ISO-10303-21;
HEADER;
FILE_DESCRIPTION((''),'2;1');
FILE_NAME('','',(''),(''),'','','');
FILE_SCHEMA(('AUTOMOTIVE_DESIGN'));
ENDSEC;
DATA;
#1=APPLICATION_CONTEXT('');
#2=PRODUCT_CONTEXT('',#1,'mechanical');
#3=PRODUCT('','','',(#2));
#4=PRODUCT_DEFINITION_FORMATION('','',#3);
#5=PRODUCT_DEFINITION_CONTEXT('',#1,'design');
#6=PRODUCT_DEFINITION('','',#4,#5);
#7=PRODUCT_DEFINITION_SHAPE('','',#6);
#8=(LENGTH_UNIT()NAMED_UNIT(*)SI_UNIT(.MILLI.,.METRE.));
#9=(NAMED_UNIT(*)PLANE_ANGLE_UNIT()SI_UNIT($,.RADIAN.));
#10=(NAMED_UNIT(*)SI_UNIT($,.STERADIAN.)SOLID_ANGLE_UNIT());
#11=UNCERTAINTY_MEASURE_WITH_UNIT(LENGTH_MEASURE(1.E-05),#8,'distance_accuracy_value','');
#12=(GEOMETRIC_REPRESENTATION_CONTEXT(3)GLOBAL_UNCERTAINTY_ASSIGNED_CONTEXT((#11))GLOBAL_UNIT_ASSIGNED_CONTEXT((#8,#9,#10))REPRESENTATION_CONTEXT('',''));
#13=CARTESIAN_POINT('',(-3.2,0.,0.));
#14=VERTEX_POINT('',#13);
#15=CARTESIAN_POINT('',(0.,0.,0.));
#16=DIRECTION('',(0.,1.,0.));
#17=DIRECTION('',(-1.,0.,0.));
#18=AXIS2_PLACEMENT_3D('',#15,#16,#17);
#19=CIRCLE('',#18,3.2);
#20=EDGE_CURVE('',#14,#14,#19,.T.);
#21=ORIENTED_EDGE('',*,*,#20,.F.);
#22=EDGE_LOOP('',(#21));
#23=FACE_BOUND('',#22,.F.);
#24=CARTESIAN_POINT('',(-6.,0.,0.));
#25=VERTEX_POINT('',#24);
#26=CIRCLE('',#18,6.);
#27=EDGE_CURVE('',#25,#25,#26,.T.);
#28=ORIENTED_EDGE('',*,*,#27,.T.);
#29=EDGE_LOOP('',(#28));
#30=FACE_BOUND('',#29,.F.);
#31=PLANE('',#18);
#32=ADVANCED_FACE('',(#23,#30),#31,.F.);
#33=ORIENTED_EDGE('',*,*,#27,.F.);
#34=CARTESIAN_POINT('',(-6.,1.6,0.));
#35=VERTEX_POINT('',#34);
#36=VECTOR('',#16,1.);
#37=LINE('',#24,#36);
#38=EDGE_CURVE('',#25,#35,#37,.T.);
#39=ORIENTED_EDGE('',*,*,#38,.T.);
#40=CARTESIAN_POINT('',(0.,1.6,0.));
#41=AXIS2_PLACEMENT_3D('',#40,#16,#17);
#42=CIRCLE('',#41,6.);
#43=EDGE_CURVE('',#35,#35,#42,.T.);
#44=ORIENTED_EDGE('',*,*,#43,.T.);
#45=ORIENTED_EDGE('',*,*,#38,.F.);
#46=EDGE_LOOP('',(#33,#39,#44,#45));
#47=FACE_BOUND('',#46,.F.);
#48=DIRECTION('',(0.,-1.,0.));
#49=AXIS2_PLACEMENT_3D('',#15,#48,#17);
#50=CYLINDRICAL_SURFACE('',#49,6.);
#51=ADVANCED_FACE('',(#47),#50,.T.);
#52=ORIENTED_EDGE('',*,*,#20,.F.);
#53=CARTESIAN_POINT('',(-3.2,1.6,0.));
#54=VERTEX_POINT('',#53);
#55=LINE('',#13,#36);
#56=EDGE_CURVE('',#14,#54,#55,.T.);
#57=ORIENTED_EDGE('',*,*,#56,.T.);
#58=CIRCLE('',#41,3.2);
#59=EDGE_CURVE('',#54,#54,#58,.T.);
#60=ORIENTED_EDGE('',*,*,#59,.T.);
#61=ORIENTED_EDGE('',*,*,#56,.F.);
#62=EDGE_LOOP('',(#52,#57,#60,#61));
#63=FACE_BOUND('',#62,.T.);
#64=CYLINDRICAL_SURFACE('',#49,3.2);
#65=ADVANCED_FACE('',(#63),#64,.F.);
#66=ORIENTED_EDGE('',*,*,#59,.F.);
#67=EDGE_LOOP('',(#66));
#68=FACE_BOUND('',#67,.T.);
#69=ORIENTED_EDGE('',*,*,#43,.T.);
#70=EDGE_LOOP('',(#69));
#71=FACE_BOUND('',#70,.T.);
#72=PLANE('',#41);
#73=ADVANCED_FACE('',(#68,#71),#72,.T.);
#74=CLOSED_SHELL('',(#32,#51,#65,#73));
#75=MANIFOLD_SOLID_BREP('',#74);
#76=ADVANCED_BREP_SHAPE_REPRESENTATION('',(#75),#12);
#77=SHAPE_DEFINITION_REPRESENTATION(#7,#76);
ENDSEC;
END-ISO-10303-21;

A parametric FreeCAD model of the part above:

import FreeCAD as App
import Part
import Sketcher
Q = App.Units.Quantity

doc = App.newDocument("Part")
body = doc.addObject("PartDesign::Body", "Body")

# Sketch on XZ plane
sketch1 = doc.addObject("Sketcher::SketchObject", "Sketch")
body.addObject(sketch1)
sketch1.AttachmentSupport = (doc.XZ_Plane, [""])
sketch1.MapMode = "FlatFace"
sketch1.addGeometry(Part.Circle(App.Vector(0, 0, 0), App.Vector(0, 0, 1), 6), False)
sketch1.addGeometry(Part.Circle(App.Vector(0, 0, 0), App.Vector(0, 0, 1), 3.2), False)
sketch1.addConstraint(Sketcher.Constraint("Coincident", 0, 3, -1, 1))
sketch1.addConstraint(Sketcher.Constraint("Coincident", 1, 3, -1, 1))
sketch1.addConstraint(Sketcher.Constraint("Diameter", 0, Q("12 mm")))
sketch1.addConstraint(Sketcher.Constraint("Diameter", 1, Q("6.4 mm")))
pad1 = doc.addObject("PartDesign::Pad", "Pad")
body.addObject(pad1)
pad1.Profile = sketch1
pad1.Length = 1.6
pad1.Reversed = True

doc.recompute()
